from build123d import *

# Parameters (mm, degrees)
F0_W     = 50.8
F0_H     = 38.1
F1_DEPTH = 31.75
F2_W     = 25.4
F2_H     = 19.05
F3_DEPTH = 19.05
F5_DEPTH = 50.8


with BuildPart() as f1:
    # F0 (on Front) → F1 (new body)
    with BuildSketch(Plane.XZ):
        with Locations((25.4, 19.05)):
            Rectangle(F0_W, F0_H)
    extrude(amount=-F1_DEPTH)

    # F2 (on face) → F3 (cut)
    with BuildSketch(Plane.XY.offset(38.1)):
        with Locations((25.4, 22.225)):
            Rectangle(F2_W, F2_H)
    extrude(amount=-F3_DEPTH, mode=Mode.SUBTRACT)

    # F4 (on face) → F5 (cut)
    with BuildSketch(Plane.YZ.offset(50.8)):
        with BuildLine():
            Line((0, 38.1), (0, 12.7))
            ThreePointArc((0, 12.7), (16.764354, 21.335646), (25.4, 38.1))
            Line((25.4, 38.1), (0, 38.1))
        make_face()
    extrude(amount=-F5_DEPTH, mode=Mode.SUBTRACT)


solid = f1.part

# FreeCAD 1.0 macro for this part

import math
import FreeCAD as App
import Part
import Sketcher

V = App.Vector
Q = App.Units.Quantity


def add_polygon(sketch, points):
    """Adds a closed chain of lines whose ends are joined by coincident constraints."""
    first, n = sketch.GeometryCount, len(points)
    for a, b in zip(points, points[1:] + points[:1]):
        sketch.addGeometry(Part.LineSegment(App.Vector(*a, 0), App.Vector(*b, 0)), False)
    for i in range(n):
        sketch.addConstraint(Sketcher.Constraint("Coincident", first + i, 2, first + (i + 1) % n, 1))

doc = App.newDocument("Part")
body = doc.addObject("PartDesign::Body", "Body")

sketch1 = body.newObject("Sketcher::SketchObject", "Sketch")
sketch1.AttachmentSupport = (doc.getObject("XZ_Plane"), [""])
sketch1.MapMode = "FlatFace"
add_polygon(sketch1, [(0, 38), (0, 0), (51, 0), (51, 38)])
sketch1.addConstraint([
    Sketcher.Constraint("Vertical", 0),
    Sketcher.Constraint("Horizontal", 1),
    Sketcher.Constraint("Vertical", 2),
    Sketcher.Constraint("Horizontal", 3),
    Sketcher.Constraint("Coincident", 0, 2, -1, 1),
    Sketcher.Constraint("DistanceX", 1, 1, 1, 2, Q("2 in")),
    Sketcher.Constraint("DistanceY", 0, 2, 0, 1, Q("1.5 in")),
])
pad1 = body.newObject("PartDesign::Pad", "Pad")
pad1.Profile = sketch1
pad1.Length = Q("1.25 in")
pad1.Reversed = True

sketch2 = body.newObject("Sketcher::SketchObject", "Sketch001")
sketch2.AttachmentSupport = (doc.getObject("XY_Plane"), [""])
sketch2.MapMode = "FlatFace"
sketch2.AttachmentOffset = App.Placement(V(0, 0, 1.5 * 25.4), App.Rotation())
add_polygon(sketch2, [(13, 32), (13, 13), (38, 13), (38, 32)])
sketch2.addConstraint([
    Sketcher.Constraint("Vertical", 0),
    Sketcher.Constraint("Horizontal", 1),
    Sketcher.Constraint("Vertical", 2),
    Sketcher.Constraint("Horizontal", 3),
    Sketcher.Constraint("DistanceX", 1, 1, 1, 2, Q("1 in")),
    Sketcher.Constraint("DistanceY", 0, 2, 0, 1, Q("0.75 in")),
    Sketcher.Constraint("DistanceX", -1, 1, 0, 2, Q("0.5 in")),
    Sketcher.Constraint("DistanceY", -1, 1, 0, 2, Q("0.5 in")),
])
pocket1 = body.newObject("PartDesign::Pocket", "Pocket")
pocket1.Profile = sketch2
pocket1.Length = Q("0.75 in")

sketch3 = body.newObject("Sketcher::SketchObject", "Sketch002")
sketch3.AttachmentSupport = (doc.getObject("YZ_Plane"), [""])
sketch3.MapMode = "FlatFace"
sketch3.AttachmentOffset = App.Placement(V(0, 0, 2 * 25.4), App.Rotation())
sketch3.addGeometry([
    Part.LineSegment(V(0, 38, 0), V(0, 13, 0)),
    Part.ArcOfCircle(Part.Circle(V(-5, 43, 0), V(0, 0, 1), 31), math.radians(-80), math.radians(-10)),
    Part.LineSegment(V(25, 38, 0), V(0, 38, 0)),
], False)
sketch3.addConstraint([
    Sketcher.Constraint("Coincident", 0, 2, 1, 1),
    Sketcher.Constraint("Coincident", 1, 2, 2, 1),
    Sketcher.Constraint("Coincident", 2, 2, 0, 1),
    Sketcher.Constraint("Vertical", 0),
    Sketcher.Constraint("Horizontal", 2),
    Sketcher.Constraint("PointOnObject", 0, 2, -2),
    Sketcher.Constraint("Equal", 2, 0),
    Sketcher.Constraint("DistanceX", 2, 2, 2, 1, Q("1 in")),
    Sketcher.Constraint("DistanceY", -1, 1, 0, 2, Q("0.5 in")),
    Sketcher.Constraint("Radius", 1, 30.934788),
])
pocket2 = body.newObject("PartDesign::Pocket", "Pocket001")
pocket2.Profile = sketch3
pocket2.Length = Q("2 in")

doc.recompute()
